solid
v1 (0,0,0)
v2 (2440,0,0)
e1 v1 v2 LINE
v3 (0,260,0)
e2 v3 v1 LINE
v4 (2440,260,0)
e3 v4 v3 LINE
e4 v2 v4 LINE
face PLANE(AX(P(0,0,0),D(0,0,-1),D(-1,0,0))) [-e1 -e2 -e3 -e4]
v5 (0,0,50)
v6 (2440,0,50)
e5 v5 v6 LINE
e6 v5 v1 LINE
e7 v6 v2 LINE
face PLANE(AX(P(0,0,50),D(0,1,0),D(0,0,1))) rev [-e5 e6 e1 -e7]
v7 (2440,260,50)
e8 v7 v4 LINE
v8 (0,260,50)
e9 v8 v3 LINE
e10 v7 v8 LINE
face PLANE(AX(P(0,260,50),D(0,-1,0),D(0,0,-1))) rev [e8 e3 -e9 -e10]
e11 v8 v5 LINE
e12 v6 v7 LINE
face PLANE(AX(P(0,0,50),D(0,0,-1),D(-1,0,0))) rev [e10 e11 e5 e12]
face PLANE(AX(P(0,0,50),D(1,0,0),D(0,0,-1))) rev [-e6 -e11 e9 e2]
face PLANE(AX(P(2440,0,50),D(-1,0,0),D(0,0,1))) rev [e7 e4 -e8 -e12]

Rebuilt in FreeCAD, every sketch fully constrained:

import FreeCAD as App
import Part
import Sketcher

V = App.Vector


def add_polygon(sketch, points):
    """Adds a closed chain of lines whose ends are joined by coincident constraints."""
    first, n = sketch.GeometryCount, len(points)
    for a, b in zip(points, points[1:] + points[:1]):
        sketch.addGeometry(Part.LineSegment(App.Vector(*a, 0), App.Vector(*b, 0)), False)
    for i in range(n):
        sketch.addConstraint(Sketcher.Constraint("Coincident", first + i, 2, first + (i + 1) % n, 1))

doc = App.newDocument("Part")
body = doc.addObject("PartDesign::Body", "Body")

sketch1 = body.newObject("Sketcher::SketchObject", "Sketch")
sketch1.AttachmentSupport = (doc.getObject("XY_Plane"), [""])
sketch1.MapMode = "FlatFace"
add_polygon(sketch1, [(0, 260), (0, 0), (2440, 0), (2440, 260)])
sketch1.addConstraint([
    Sketcher.Constraint("Vertical", 0),
    Sketcher.Constraint("Horizontal", 1),
    Sketcher.Constraint("Vertical", 2),
    Sketcher.Constraint("Horizontal", 3),
    Sketcher.Constraint("Coincident", 0, 2, -1, 1),
    Sketcher.Constraint("DistanceX", 1, 1, 1, 2, 2440.0),
    Sketcher.Constraint("DistanceY", 0, 2, 0, 1, 260.0),
])
pad1 = body.newObject("PartDesign::Pad", "Pad")
pad1.Profile = sketch1
pad1.Length = 50

doc.recompute()
